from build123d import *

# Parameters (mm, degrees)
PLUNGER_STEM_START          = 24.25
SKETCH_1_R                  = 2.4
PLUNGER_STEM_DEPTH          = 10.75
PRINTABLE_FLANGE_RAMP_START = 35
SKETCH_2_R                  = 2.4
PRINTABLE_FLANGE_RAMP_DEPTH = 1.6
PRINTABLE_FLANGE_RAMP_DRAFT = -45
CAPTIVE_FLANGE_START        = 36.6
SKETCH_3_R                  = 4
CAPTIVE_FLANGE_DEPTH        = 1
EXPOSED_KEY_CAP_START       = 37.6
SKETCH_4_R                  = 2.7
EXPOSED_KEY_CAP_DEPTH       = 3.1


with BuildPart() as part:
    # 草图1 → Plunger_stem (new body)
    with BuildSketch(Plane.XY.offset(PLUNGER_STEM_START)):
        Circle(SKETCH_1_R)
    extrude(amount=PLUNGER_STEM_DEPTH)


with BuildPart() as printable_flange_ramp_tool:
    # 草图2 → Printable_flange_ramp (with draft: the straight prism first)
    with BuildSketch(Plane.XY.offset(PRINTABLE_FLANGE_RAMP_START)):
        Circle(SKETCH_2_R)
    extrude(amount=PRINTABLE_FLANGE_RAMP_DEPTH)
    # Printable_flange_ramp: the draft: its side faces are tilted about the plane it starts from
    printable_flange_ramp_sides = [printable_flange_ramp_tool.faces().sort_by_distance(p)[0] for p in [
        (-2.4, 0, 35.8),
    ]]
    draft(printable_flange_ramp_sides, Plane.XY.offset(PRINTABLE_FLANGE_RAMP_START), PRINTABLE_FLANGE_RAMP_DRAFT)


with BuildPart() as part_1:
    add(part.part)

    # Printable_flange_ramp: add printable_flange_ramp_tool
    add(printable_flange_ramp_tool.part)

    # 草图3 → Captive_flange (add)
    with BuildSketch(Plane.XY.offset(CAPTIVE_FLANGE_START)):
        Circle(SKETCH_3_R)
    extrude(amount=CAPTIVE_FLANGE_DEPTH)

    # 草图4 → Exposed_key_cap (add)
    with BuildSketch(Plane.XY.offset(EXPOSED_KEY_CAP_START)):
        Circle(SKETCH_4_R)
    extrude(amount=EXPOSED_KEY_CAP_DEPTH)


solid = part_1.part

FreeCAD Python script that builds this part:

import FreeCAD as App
import Part
import Sketcher


def faces_at(feature, points):
    """Names of the faces that lie closest to the given points."""
    faces = feature.Shape.Faces
    near = lambda p: min(range(len(faces)), key=lambda i: faces[i].distToShape(Part.Vertex(*p))[0])
    return sorted({f"Face{near(p) + 1}" for p in points})

doc = App.newDocument("Part")
body = doc.addObject("PartDesign::Body", "Body")

# Sketch on XY plane
sketch1 = doc.addObject("Sketcher::SketchObject", "Sketch")
body.addObject(sketch1)
sketch1.AttachmentSupport = (doc.XY_Plane, [""])
sketch1.MapMode = "FlatFace"
sketch1.AttachmentOffset = App.Placement(App.Vector(0, 0, 24.25), App.Rotation())
sketch1.addGeometry(Part.Circle(App.Vector(0, 0, 0), App.Vector(0, 0, 1), 2.4), False)
sketch1.addConstraint(Sketcher.Constraint("Coincident", 0, 3, -1, 1))
sketch1.addConstraint(Sketcher.Constraint("Diameter", 0, 4.8))
pad1 = doc.addObject("PartDesign::Pad", "Pad")
body.addObject(pad1)
pad1.Profile = sketch1
pad1.Length = 10.75
body2 = doc.addObject("PartDesign::Body", "Body001")

# Sketch on XY plane
sketch2 = doc.addObject("Sketcher::SketchObject", "Sketch001")
body2.addObject(sketch2)
sketch2.AttachmentSupport = (doc.getObject("XY_Plane001"), [""])
sketch2.MapMode = "FlatFace"
sketch2.AttachmentOffset = App.Placement(App.Vector(0, 0, 35), App.Rotation())
sketch2.addGeometry(Part.Circle(App.Vector(0, 0, 0), App.Vector(0, 0, 1), 2.4), False)
sketch2.addConstraint(Sketcher.Constraint("Coincident", 0, 3, -1, 1))
sketch2.addConstraint(Sketcher.Constraint("Diameter", 0, 4.8))
pad2 = doc.addObject("PartDesign::Pad", "Pad001")
body2.addObject(pad2)
pad2.Profile = sketch2
pad2.Length = 1.6
doc.recompute()

datumplane = doc.addObject("PartDesign::Plane", "DatumPlane")
body2.addObject(datumplane)
datumplane.AttachmentSupport = (doc.getObject("XY_Plane001"), [""])
datumplane.MapMode = "FlatFace"
datumplane.AttachmentOffset = App.Placement(App.Vector(0, 0, 35), App.Rotation())
draft = doc.addObject("PartDesign::Draft", "Draft")
body2.addObject(draft)
draft.Base = (pad2, faces_at(pad2, [(-2.4, 0, 35.8)]))
draft.NeutralPlane = (datumplane, [""])
draft.Angle = 45
draft.Reversed = True
doc.recompute()

boolean = doc.addObject("PartDesign::Boolean", "Boolean")
body.addObject(boolean)
boolean.Type = "Fuse"
boolean.addObjects([body2])

# Sketch on XY plane
sketch3 = doc.addObject("Sketcher::SketchObject", "Sketch002")
body.addObject(sketch3)
sketch3.AttachmentSupport = (doc.XY_Plane, [""])
sketch3.MapMode = "FlatFace"
sketch3.AttachmentOffset = App.Placement(App.Vector(0, 0, 36.6), App.Rotation())
sketch3.addGeometry(Part.Circle(App.Vector(0, 0, 0), App.Vector(0, 0, 1), 4), False)
sketch3.addConstraint(Sketcher.Constraint("Coincident", 0, 3, -1, 1))
sketch3.addConstraint(Sketcher.Constraint("Diameter", 0, 8.0))
pad3 = doc.addObject("PartDesign::Pad", "Pad002")
body.addObject(pad3)
pad3.Profile = sketch3
pad3.Length = 1

# Sketch on XY plane
sketch4 = doc.addObject("Sketcher::SketchObject", "Sketch003")
body.addObject(sketch4)
sketch4.AttachmentSupport = (doc.XY_Plane, [""])
sketch4.MapMode = "FlatFace"
sketch4.AttachmentOffset = App.Placement(App.Vector(0, 0, 37.6), App.Rotation())
sketch4.addGeometry(Part.Circle(App.Vector(0, 0, 0), App.Vector(0, 0, 1), 2.7), False)
sketch4.addConstraint(Sketcher.Constraint("Coincident", 0, 3, -1, 1))
sketch4.addConstraint(Sketcher.Constraint("Diameter", 0, 5.4))
pad4 = doc.addObject("PartDesign::Pad", "Pad003")
body.addObject(pad4)
pad4.Profile = sketch4
pad4.Length = 3.1

doc.recompute()
